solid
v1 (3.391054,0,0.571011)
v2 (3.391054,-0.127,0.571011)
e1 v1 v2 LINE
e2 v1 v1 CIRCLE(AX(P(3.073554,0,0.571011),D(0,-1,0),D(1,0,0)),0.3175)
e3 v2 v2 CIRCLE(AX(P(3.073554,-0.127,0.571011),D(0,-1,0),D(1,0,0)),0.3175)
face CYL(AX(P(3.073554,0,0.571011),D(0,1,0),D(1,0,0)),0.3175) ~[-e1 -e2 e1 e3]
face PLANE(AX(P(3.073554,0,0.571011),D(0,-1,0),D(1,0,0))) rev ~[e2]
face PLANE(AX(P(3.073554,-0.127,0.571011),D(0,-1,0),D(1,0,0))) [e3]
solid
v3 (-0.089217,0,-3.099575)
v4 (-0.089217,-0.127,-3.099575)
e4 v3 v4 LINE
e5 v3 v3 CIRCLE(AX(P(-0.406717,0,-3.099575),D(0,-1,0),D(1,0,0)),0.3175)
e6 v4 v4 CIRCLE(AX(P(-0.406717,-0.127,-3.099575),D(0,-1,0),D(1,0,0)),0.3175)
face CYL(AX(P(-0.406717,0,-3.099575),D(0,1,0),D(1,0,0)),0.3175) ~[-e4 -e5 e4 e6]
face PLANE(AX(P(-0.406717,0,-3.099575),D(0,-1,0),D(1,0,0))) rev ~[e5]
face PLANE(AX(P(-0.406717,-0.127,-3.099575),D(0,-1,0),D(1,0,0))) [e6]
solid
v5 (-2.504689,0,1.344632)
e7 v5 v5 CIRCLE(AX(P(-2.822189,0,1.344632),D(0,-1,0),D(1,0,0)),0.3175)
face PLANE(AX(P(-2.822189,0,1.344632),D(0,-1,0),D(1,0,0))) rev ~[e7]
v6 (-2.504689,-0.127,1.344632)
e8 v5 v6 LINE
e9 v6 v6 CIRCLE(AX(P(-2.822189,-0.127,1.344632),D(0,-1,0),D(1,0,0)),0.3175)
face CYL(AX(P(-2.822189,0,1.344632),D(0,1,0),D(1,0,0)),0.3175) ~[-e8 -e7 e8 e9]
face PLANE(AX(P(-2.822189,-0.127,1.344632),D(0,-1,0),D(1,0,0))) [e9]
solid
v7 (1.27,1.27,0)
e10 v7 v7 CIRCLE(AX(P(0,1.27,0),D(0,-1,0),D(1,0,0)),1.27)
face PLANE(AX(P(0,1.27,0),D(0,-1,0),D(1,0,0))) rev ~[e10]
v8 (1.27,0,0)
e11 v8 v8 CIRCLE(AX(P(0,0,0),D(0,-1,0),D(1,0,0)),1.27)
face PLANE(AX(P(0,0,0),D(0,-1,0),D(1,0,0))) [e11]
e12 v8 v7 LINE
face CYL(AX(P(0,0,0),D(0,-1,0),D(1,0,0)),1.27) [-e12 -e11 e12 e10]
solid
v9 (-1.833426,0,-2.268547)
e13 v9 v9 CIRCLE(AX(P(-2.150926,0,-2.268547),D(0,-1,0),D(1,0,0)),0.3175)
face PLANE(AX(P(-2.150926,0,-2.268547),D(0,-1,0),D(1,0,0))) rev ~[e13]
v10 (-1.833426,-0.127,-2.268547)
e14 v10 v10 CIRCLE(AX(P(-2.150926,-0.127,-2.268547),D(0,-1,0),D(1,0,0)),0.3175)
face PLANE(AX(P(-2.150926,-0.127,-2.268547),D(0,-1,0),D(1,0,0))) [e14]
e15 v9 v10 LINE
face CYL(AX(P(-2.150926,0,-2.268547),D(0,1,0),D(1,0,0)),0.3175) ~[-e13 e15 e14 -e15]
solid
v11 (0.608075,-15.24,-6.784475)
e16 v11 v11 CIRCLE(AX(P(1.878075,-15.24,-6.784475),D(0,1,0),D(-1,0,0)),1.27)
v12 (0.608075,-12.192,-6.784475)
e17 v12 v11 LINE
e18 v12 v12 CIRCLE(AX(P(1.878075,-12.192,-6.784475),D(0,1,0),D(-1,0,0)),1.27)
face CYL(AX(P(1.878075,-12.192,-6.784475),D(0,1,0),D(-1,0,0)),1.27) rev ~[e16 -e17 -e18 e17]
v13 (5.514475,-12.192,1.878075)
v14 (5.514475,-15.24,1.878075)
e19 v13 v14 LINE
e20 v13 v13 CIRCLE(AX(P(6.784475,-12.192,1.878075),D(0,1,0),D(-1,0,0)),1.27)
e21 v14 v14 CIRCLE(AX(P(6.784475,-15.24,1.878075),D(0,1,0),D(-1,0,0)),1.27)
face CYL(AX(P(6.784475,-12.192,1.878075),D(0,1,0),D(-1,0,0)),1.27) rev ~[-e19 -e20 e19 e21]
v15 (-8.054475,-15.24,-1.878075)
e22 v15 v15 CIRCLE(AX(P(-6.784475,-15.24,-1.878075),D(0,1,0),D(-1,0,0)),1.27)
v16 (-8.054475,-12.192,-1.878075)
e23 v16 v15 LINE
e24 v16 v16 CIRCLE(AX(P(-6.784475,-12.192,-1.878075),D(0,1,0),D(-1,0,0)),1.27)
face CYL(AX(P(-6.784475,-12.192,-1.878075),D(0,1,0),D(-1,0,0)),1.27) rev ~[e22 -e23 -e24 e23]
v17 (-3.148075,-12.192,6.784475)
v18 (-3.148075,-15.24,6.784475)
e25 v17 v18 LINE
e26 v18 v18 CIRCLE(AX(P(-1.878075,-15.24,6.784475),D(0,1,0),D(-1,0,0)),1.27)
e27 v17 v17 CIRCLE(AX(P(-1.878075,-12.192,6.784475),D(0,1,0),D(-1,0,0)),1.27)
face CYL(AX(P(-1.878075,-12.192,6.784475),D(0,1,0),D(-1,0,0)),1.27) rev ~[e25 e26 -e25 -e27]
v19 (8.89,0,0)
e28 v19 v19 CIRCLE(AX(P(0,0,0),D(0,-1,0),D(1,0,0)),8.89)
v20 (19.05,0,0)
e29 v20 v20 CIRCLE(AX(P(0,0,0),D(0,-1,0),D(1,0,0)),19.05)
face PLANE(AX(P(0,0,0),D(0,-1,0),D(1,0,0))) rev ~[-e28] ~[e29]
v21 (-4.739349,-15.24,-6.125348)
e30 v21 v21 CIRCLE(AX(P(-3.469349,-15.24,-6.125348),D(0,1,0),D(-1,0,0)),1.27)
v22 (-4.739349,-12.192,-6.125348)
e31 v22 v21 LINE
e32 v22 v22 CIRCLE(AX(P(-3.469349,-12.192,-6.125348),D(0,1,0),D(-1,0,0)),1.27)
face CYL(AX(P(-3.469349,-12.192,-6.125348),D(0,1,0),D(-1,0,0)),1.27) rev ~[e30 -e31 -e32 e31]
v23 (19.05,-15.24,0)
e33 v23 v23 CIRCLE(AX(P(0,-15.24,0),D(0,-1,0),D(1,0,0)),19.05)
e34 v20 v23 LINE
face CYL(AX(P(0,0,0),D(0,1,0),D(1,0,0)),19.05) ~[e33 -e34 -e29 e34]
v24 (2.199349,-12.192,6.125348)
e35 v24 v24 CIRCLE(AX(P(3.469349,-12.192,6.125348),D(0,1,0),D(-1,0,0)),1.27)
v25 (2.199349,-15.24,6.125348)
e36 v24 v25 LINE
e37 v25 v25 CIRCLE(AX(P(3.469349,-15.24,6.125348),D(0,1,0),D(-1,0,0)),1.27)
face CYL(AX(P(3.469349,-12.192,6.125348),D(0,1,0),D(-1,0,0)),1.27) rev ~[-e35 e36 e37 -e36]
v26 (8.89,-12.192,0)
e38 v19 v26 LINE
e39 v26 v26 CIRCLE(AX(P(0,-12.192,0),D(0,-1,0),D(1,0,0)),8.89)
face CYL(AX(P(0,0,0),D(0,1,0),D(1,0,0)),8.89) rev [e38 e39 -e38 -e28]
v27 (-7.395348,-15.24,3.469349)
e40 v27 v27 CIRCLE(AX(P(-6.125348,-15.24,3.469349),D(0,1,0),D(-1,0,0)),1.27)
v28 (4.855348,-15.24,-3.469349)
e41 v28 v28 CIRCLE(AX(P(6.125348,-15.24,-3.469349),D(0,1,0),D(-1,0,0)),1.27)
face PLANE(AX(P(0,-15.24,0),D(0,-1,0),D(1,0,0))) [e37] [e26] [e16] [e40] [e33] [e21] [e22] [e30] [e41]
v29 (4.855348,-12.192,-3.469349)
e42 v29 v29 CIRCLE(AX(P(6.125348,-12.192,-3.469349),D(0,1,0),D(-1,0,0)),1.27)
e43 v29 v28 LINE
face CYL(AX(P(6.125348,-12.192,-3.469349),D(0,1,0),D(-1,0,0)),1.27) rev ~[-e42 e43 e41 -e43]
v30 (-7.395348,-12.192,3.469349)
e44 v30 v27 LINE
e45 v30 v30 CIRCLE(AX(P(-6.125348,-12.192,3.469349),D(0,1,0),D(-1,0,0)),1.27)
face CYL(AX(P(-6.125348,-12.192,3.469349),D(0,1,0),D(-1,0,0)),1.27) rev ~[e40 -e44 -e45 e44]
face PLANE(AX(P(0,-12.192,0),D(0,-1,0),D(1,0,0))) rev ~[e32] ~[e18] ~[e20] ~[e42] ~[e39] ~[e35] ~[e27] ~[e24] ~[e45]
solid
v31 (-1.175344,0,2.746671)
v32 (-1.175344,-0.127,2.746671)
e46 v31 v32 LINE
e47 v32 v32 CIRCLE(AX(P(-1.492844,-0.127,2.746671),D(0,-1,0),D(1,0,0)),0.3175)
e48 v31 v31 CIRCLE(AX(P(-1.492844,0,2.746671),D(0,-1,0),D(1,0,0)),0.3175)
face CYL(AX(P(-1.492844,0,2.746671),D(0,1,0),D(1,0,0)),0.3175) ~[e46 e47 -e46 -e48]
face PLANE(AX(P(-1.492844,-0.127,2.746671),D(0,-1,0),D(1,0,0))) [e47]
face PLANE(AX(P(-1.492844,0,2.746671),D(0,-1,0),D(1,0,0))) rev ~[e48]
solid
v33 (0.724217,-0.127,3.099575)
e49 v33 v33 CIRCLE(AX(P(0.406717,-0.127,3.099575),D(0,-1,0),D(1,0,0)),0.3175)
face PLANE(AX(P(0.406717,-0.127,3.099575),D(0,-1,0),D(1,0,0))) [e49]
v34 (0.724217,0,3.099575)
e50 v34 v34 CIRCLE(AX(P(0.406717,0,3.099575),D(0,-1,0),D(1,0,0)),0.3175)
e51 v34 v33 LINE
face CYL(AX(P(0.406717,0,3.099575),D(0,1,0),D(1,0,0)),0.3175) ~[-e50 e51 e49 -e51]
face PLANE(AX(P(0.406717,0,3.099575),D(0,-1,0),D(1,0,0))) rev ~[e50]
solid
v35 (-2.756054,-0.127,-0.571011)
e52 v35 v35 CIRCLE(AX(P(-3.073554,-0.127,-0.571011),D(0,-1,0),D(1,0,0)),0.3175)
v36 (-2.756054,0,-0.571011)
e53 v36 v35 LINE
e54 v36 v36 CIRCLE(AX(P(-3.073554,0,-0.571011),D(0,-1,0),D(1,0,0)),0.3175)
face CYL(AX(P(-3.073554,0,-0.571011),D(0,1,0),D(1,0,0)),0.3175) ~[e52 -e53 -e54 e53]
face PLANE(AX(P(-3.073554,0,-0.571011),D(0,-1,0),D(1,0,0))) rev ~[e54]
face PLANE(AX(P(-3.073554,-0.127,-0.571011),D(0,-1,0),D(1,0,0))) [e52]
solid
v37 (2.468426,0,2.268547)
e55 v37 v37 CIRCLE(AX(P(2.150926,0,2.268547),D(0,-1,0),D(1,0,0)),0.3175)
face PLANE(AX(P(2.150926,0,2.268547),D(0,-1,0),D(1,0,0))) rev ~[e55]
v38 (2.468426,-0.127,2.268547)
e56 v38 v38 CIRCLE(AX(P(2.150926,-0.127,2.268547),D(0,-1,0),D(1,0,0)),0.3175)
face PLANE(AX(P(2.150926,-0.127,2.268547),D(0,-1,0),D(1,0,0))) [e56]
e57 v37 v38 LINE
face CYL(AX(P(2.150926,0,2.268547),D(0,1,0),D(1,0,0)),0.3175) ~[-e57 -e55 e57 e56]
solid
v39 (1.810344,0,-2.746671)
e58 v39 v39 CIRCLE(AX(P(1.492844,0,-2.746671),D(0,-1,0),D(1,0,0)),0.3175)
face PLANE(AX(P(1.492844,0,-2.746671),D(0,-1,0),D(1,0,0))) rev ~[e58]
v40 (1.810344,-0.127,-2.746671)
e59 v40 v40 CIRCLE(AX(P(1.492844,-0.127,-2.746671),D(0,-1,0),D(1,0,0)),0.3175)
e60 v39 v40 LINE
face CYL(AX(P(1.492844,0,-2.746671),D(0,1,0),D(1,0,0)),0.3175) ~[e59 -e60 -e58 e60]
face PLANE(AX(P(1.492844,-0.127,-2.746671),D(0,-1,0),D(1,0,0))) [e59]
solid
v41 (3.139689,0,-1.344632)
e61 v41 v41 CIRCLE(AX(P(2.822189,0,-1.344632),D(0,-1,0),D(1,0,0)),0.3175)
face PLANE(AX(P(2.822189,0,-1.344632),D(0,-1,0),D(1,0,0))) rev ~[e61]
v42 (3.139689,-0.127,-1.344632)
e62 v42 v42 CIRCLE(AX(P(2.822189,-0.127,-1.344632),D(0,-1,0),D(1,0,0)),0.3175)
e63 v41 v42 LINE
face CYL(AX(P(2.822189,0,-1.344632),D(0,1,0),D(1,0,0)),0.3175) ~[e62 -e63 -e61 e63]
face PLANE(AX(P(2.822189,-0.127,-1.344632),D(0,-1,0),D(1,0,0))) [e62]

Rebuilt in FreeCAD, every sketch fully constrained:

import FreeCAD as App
import Part
import Sketcher

V = App.Vector
Q = App.Units.Quantity

doc = App.newDocument("Part")
body = doc.addObject("PartDesign::Body", "Body")

# Sketch on XZ plane
sketch1 = doc.addObject("Sketcher::SketchObject", "Sketch")
body.addObject(sketch1)
sketch1.AttachmentSupport = (doc.XZ_Plane, [""])
sketch1.MapMode = "FlatFace"
sketch1.addGeometry([
    Part.Circle(V(0, 0, 0), V(0, 0, 1), 19.05),
    Part.Circle(V(0, 0, 0), V(0, 0, 1), 8.89),
], False)
sketch1.addConstraint([
    Sketcher.Constraint("Coincident", 0, 3, -1, 1),
    Sketcher.Constraint("Coincident", 1, 3, -1, 1),
    Sketcher.Constraint("Diameter", 0, Q("1.5 in")),
    Sketcher.Constraint("Diameter", 1, Q("0.7 in")),
])
pad1 = doc.addObject("PartDesign::Pad", "Pad")
body.addObject(pad1)
pad1.Profile = sketch1
pad1.Length = Q("0.6 in")

# Sketch on XZ plane
sketch2 = doc.addObject("Sketcher::SketchObject", "Sketch001")
body.addObject(sketch2)
sketch2.AttachmentSupport = (doc.XZ_Plane, [""])
sketch2.MapMode = "FlatFace"
sketch2.addGeometry(Part.Circle(V(0, 0, 0), V(0, 0, 1), 8.89), False)
sketch2.addConstraint([
    Sketcher.Constraint("Coincident", 0, 3, -1, 1),
    Sketcher.Constraint("Diameter", 0, Q("0.7 in")),
])
pad2 = doc.addObject("PartDesign::Pad", "Pad001")
body.addObject(pad2)
pad2.Profile = sketch2
pad2.Length = Q("0.6 in")

# Sketch on XZ plane
sketch3 = doc.addObject("Sketcher::SketchObject", "Sketch002")
body.addObject(sketch3)
sketch3.AttachmentSupport = (doc.XZ_Plane, [""])
sketch3.MapMode = "FlatFace"
sketch3.addGeometry(Part.Circle(V(0, 0, 0), V(0, 0, 1), 8.89), False)
sketch3.addConstraint([
    Sketcher.Constraint("Coincident", 0, 3, -1, 1),
    Sketcher.Constraint("Diameter", 0, Q("0.7 in")),
])
pocket1 = doc.addObject("PartDesign::Pocket", "Pocket")
body.addObject(pocket1)
pocket1.Profile = sketch3
pocket1.Length = Q("0.48 in")
pocket1.Reversed = True

# Sketch on XZ plane
sketch4 = doc.addObject("Sketcher::SketchObject", "Sketch003")
body.addObject(sketch4)
sketch4.AttachmentSupport = (doc.XZ_Plane, [""])
sketch4.MapMode = "FlatFace"
sketch4.AttachmentOffset = App.Placement(V(0, 0, 0.48 * 25.4), App.Rotation())
sketch4.addGeometry([
    Part.Circle(V(6.784475, 1.878075, 0), V(0, 0, 1), 1.27),  # 0
    Part.Circle(V(3.469349, 6.125348, 0), V(0, 0, 1), 1.27),  # 1
    Part.Circle(V(-1.878075, 6.784475, 0), V(0, 0, 1), 1.27),  # 2
    Part.Circle(V(-6.125348, 3.469349, 0), V(0, 0, 1), 1.27),  # 3
    Part.Circle(V(-3.469349, -6.125348, 0), V(0, 0, 1), 1.27),  # 4
    Part.Circle(V(-6.784475, -1.878075, 0), V(0, 0, 1), 1.27),  # 5
    Part.Circle(V(1.878075, -6.784475, 0), V(0, 0, 1), 1.27),  # 6
    Part.Circle(V(6.125348, -3.469349, 0), V(0, 0, 1), 1.27),  # 7
], False)
sketch4.addConstraint([
    Sketcher.Constraint("Equal", 0, 1),
    Sketcher.Constraint("Equal", 1, 2),
    Sketcher.Constraint("Equal", 2, 3),
    Sketcher.Constraint("Equal", 3, 4),
    Sketcher.Constraint("Equal", 4, 5),
    Sketcher.Constraint("Equal", 5, 6),
    Sketcher.Constraint("Equal", 6, 7),
    Sketcher.Constraint("Symmetric", 1, 3, 4, 3, -1, 1),
    Sketcher.Constraint("Symmetric", 0, 3, 5, 3, -1, 1),
    Sketcher.Constraint("Symmetric", 2, 3, 6, 3, -1, 1),
    Sketcher.Constraint("Symmetric", 3, 3, 7, 3, -1, 1),
    Sketcher.Constraint("Diameter", 0, Q("0.1 in")),
    Sketcher.Constraint("DistanceY", 0, 3, 2, 3, 4.9064),
    Sketcher.Constraint("DistanceY", 3, 3, 1, 3, 2.655999),
    Sketcher.Constraint("DistanceX", 3, 3, 4, 3, 2.655999),
    Sketcher.Constraint("DistanceX", 5, 3, 2, 3, 4.9064),
    Sketcher.Constraint("DistanceX", -1, 1, 1, 3, 3.469349),
    Sketcher.Constraint("DistanceY", -1, 1, 3, 3, 3.469349),
    Sketcher.Constraint("DistanceX", 2, 3, 0, 3, 8.66255),
    Sketcher.Constraint("DistanceY", 5, 3, 2, 3, 8.66255),
])
pocket2 = doc.addObject("PartDesign::Pocket", "Pocket001")
body.addObject(pocket2)
pocket2.Profile = sketch4
pocket2.Length = Q("0.12 in")
pocket2.Reversed = True
body2 = doc.addObject("PartDesign::Body", "Body001")
body2.AllowCompound = True

# Sketch on XZ plane
sketch5 = doc.addObject("Sketcher::SketchObject", "Sketch004")
body2.addObject(sketch5)
sketch5.AttachmentSupport = (doc.getObject("XZ_Plane001"), [""])
sketch5.MapMode = "FlatFace"
sketch5.addGeometry([
    Part.Circle(V(0.406717, 3.099575, 0), V(0, 0, 1), 0.3175),  # 0
    Part.Circle(V(2.150926, 2.268547, 0), V(0, 0, 1), 0.3175),  # 1
    Part.Circle(V(3.073554, 0.571011, 0), V(0, 0, 1), 0.3175),  # 2
    Part.Circle(V(2.822189, -1.344632, 0), V(0, 0, 1), 0.3175),  # 3
    Part.Circle(V(1.492844, -2.746671, 0), V(0, 0, 1), 0.3175),  # 4
    Part.Circle(V(-0.406717, -3.099575, 0), V(0, 0, 1), 0.3175),  # 5
    Part.Circle(V(-2.150926, -2.268547, 0), V(0, 0, 1), 0.3175),  # 6
    Part.Circle(V(-3.073554, -0.571011, 0), V(0, 0, 1), 0.3175),  # 7
    Part.Circle(V(-2.822189, 1.344632, 0), V(0, 0, 1), 0.3175),  # 8
    Part.Circle(V(-1.492844, 2.746671, 0), V(0, 0, 1), 0.3175),  # 9
], False)
sketch5.addConstraint([
    Sketcher.Constraint("Equal", 0, 1),
    Sketcher.Constraint("Equal", 1, 2),
    Sketcher.Constraint("Equal", 2, 3),
    Sketcher.Constraint("Equal", 3, 4),
    Sketcher.Constraint("Equal", 4, 5),
    Sketcher.Constraint("Equal", 5, 6),
    Sketcher.Constraint("Equal", 6, 7),
    Sketcher.Constraint("Equal", 7, 8),
    Sketcher.Constraint("Equal", 8, 9),
    Sketcher.Constraint("Symmetric", 0, 3, 5, 3, -1, 1),
    Sketcher.Constraint("Symmetric", 1, 3, 6, 3, -1, 1),
    Sketcher.Constraint("Symmetric", 2, 3, 7, 3, -1, 1),
    Sketcher.Constraint("Symmetric", 3, 3, 8, 3, -1, 1),
    Sketcher.Constraint("Symmetric", 4, 3, 9, 3, -1, 1),
    Sketcher.Constraint("Diameter", 0, Q("0.025 in")),
    Sketcher.Constraint("DistanceX", 7, 3, 4, 3, 4.566398),
    Sketcher.Constraint("DistanceY", -1, 1, 2, 3, 0.571011),
    Sketcher.Constraint("DistanceX", -1, 1, 3, 3, 2.822189),
    Sketcher.Constraint("DistanceY", 4, 3, -1, 1, 2.746671),
    Sketcher.Constraint("DistanceX", 0, 3, 1, 3, 1.744209),
    Sketcher.Constraint("DistanceY", 1, 3, 0, 3, 0.831028),
    Sketcher.Constraint("DistanceX", 1, 3, 2, 3, 0.922628),
    Sketcher.Constraint("DistanceY", 3, 3, 1, 3, 3.613179),
    Sketcher.Constraint("DistanceX", 0, 3, 3, 3, 2.415472),
    Sketcher.Constraint("DistanceY", 4, 3, 3, 3, 1.402039),
])
pad3 = doc.addObject("PartDesign::Pad", "Pad002")
body2.addObject(pad3)
pad3.Profile = sketch5
pad3.Length = Q("0.005 in")
body3 = doc.addObject("PartDesign::Body", "Body002")

# Sketch on XZ plane
sketch6 = doc.addObject("Sketcher::SketchObject", "Sketch005")
body3.addObject(sketch6)
sketch6.AttachmentSupport = (doc.getObject("XZ_Plane002"), [""])
sketch6.MapMode = "FlatFace"
sketch6.addGeometry(Part.Circle(V(0, 0, 0), V(0, 0, 1), 1.27), False)
sketch6.addConstraint([
    Sketcher.Constraint("Coincident", 0, 3, -1, 1),
    Sketcher.Constraint("Diameter", 0, Q("0.1 in")),
])
pad4 = doc.addObject("PartDesign::Pad", "Pad003")
body3.addObject(pad4)
pad4.Profile = sketch6
pad4.Length = Q("0.05 in")
pad4.Reversed = True

doc.recompute()
